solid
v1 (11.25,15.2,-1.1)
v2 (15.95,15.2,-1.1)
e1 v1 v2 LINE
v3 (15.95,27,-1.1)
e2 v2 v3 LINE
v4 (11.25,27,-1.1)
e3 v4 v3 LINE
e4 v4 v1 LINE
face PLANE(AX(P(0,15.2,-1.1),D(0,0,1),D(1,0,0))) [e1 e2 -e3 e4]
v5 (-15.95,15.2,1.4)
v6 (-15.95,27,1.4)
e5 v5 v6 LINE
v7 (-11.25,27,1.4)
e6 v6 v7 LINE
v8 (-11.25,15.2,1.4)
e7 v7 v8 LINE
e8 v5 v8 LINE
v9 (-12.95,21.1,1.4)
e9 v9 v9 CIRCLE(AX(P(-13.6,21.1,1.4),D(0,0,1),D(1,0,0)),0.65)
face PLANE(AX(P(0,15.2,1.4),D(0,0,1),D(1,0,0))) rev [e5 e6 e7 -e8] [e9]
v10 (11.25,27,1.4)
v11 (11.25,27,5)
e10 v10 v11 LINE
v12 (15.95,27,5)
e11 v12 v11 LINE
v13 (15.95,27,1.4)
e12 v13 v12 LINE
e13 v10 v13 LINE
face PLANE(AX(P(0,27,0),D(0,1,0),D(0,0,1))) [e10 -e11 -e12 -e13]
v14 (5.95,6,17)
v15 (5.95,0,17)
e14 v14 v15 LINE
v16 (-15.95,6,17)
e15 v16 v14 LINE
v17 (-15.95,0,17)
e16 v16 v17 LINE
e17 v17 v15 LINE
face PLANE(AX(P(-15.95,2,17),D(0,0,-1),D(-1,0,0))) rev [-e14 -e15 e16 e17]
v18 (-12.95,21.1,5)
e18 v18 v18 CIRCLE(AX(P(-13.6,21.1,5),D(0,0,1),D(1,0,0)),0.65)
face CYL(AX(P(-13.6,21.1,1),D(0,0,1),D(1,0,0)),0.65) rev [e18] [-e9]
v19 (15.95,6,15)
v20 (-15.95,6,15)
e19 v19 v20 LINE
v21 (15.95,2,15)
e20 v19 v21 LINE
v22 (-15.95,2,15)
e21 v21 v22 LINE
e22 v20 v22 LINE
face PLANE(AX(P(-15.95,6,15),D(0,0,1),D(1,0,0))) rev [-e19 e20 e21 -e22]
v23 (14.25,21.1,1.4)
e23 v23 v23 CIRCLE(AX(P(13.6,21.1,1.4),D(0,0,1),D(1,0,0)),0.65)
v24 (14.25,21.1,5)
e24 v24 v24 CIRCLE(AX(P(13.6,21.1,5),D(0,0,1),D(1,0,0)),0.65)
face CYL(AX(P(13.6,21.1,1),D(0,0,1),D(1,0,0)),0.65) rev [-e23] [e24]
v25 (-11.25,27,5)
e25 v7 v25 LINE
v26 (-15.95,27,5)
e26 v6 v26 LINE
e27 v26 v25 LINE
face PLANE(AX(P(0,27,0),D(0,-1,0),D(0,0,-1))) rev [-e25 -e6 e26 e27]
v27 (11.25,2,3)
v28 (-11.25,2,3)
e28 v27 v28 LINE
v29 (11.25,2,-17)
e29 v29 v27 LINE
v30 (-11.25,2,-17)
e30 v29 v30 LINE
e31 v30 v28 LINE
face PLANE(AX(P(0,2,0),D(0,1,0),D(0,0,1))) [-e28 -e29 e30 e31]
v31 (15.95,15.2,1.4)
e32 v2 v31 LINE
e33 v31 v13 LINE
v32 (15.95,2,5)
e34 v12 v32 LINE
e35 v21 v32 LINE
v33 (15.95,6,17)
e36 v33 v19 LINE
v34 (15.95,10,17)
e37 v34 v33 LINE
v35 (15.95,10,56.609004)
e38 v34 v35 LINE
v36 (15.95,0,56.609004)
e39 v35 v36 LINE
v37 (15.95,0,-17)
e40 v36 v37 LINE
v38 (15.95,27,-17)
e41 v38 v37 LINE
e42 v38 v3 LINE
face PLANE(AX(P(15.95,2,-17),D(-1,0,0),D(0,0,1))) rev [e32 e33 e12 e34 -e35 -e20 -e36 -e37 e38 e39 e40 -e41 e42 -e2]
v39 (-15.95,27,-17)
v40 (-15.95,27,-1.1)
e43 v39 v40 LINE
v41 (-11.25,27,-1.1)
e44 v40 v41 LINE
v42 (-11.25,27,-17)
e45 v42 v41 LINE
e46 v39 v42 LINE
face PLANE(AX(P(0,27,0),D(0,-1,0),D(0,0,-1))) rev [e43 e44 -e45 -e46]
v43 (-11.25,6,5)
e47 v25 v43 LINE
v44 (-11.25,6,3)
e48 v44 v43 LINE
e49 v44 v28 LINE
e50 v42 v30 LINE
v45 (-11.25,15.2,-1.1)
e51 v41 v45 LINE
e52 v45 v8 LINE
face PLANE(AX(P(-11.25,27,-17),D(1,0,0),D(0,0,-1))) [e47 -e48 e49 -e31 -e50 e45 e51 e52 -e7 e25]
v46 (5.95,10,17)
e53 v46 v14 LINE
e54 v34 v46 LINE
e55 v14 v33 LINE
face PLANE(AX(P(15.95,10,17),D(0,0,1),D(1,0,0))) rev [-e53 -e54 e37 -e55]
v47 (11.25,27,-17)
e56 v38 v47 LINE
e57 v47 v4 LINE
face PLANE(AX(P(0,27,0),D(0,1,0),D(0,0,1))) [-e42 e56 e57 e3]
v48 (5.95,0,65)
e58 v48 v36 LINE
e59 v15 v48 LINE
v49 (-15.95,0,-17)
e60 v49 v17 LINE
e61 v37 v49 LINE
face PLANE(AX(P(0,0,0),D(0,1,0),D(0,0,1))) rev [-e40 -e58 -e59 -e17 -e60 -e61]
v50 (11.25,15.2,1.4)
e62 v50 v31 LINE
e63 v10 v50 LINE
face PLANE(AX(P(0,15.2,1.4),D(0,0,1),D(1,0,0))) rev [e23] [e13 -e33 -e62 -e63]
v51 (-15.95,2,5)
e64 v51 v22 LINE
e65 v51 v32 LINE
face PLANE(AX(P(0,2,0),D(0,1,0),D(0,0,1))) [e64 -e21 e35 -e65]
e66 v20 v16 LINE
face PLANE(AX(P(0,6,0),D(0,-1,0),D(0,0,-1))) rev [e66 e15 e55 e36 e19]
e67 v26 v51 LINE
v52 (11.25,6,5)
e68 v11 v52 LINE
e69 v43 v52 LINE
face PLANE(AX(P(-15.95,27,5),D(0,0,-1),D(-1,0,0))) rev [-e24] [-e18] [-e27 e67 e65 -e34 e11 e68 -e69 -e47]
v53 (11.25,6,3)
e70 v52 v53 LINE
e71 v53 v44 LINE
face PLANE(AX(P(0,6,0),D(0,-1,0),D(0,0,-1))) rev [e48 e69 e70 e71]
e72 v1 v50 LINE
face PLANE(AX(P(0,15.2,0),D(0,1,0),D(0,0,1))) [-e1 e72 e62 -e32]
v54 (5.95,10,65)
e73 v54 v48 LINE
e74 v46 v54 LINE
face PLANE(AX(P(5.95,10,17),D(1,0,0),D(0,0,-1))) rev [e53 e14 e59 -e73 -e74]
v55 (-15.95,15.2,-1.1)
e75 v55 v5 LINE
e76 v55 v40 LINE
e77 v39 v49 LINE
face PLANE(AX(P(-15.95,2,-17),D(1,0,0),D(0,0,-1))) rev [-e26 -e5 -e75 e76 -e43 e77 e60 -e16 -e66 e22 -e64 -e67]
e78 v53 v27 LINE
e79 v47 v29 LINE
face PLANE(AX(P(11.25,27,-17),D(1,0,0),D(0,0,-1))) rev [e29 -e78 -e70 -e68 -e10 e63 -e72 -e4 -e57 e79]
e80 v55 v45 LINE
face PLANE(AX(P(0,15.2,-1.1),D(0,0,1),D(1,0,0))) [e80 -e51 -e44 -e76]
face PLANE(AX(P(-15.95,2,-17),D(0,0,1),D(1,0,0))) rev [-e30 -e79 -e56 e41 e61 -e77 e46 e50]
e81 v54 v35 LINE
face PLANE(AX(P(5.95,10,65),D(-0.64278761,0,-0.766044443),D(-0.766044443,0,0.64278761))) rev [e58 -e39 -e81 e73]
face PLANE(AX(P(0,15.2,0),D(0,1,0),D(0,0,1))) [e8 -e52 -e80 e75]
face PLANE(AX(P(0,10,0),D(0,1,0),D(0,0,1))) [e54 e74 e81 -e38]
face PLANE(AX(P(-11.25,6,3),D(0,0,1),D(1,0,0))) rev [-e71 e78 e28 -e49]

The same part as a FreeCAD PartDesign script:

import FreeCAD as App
import Part
import Sketcher

V = App.Vector
Q = App.Units.Quantity

doc = App.newDocument("Part")
params = doc.addObject("Spreadsheet::Sheet", "Params")
for row, (alias, value) in enumerate([
    ("sketch1_height", "34 mm"),
    ("sketch1_width", "31.9 mm"),
    ("pad1_length", "2 mm"),
    ("sketch2_height", "22 mm"),
    ("sketch2_width", "4.7 mm"),
    ("pad2_length", "25 mm"),
    ("sketch3_height", "2 mm"),
    ("sketch3_width", "22.5 mm"),
    ("sketch3_width2", "31.9 mm"),
    ("pad3_length", "4 mm"),
    ("sketch4_width", "31.9 mm"),
    ("sketch4_height", "2.5 mm"),
    ("pocket1_length", "11.8 mm"),
    ("sketch5_diameter", "1.3 mm"),
    ("pocket2_length", "4 mm"),
    ("sketch6_width", "10 mm"),
    ("sketch6_height", "48 mm"),
    ("pad4_length", "10 mm"),
], start=1):
    params.set(f"A{row}", alias)
    params.set(f"B{row}", "=" + value)
    params.setAlias(f"B{row}", alias)

body = doc.addObject("PartDesign::Body", "Body")

# Sketch on XZ plane
sketch1 = body.newObject("Sketcher::SketchObject", "Sketch")
sketch1.AttachmentSupport = (doc.getObject("XZ_Plane"), [""])
sketch1.MapMode = "FlatFace"
sketch1.addGeometry(Part.LineSegment(V(-15.95, -17, 0), V(-15.95, 17, 0)), False)
sketch1.addGeometry(Part.LineSegment(V(-15.95, 17, 0), V(15.95, 17, 0)), False)
sketch1.addGeometry(Part.LineSegment(V(15.95, 17, 0), V(15.95, -17, 0)), False)
sketch1.addGeometry(Part.LineSegment(V(15.95, -17, 0), V(-15.95, -17, 0)), False)
sketch1.addConstraint(Sketcher.Constraint("Coincident", 0, 2, 1, 1))
sketch1.addConstraint(Sketcher.Constraint("Coincident", 1, 2, 2, 1))
sketch1.addConstraint(Sketcher.Constraint("Coincident", 2, 2, 3, 1))
sketch1.addConstraint(Sketcher.Constraint("Coincident", 3, 2, 0, 1))
sketch1.addConstraint(Sketcher.Constraint("Vertical", 0))
sketch1.addConstraint(Sketcher.Constraint("Horizontal", 1))
sketch1.addConstraint(Sketcher.Constraint("Vertical", 2))
sketch1.addConstraint(Sketcher.Constraint("Horizontal", 3))
sketch1.addConstraint(Sketcher.Constraint("Symmetric", 0, 2, 2, 2, -1, 1))
sketch1.addConstraint(Sketcher.Constraint("DistanceY", 0, 1, 0, 2, Q("34 mm")))
sketch1.addConstraint(Sketcher.Constraint("DistanceX", 1, 1, 1, 2, Q("31.9 mm")))
sketch1.setExpression("Constraints[9]", "Params.sketch1_height")
sketch1.setExpression("Constraints[10]", "Params.sketch1_width")
pad1 = body.newObject("PartDesign::Pad", "Pad")
pad1.Profile = sketch1
pad1.setExpression("Length", "Params.pad1_length")
pad1.Reversed = True

# Sketch on XZ plane
sketch2 = body.newObject("Sketcher::SketchObject", "Sketch001")
sketch2.AttachmentSupport = (doc.getObject("XZ_Plane"), [""])
sketch2.MapMode = "FlatFace"
sketch2.AttachmentOffset = App.Placement(V(0, 0, -2), App.Rotation())
sketch2.addGeometry(Part.LineSegment(V(-15.95, -17, 0), V(-15.95, 5, 0)), False)
sketch2.addGeometry(Part.LineSegment(V(-15.95, 5, 0), V(-11.25, 5, 0)), False)
sketch2.addGeometry(Part.LineSegment(V(-11.25, 5, 0), V(-11.25, -17, 0)), False)
sketch2.addGeometry(Part.LineSegment(V(-11.25, -17, 0), V(-15.95, -17, 0)), False)
sketch2.addGeometry(Part.LineSegment(V(11.25, -17, 0), V(11.25, 5, 0)), False)
sketch2.addGeometry(Part.LineSegment(V(11.25, 5, 0), V(15.95, 5, 0)), False)
sketch2.addGeometry(Part.LineSegment(V(15.95, 5, 0), V(15.95, -17, 0)), False)
sketch2.addGeometry(Part.LineSegment(V(15.95, -17, 0), V(11.25, -17, 0)), False)
sketch2.addConstraint(Sketcher.Constraint("Coincident", 0, 2, 1, 1))
sketch2.addConstraint(Sketcher.Constraint("Coincident", 1, 2, 2, 1))
sketch2.addConstraint(Sketcher.Constraint("Coincident", 2, 2, 3, 1))
sketch2.addConstraint(Sketcher.Constraint("Coincident", 3, 2, 0, 1))
sketch2.addConstraint(Sketcher.Constraint("Coincident", 4, 2, 5, 1))
sketch2.addConstraint(Sketcher.Constraint("Coincident", 5, 2, 6, 1))
sketch2.addConstraint(Sketcher.Constraint("Coincident", 6, 2, 7, 1))
sketch2.addConstraint(Sketcher.Constraint("Coincident", 7, 2, 4, 1))
sketch2.addConstraint(Sketcher.Constraint("Vertical", 0))
sketch2.addConstraint(Sketcher.Constraint("Horizontal", 1))
sketch2.addConstraint(Sketcher.Constraint("Vertical", 2))
sketch2.addConstraint(Sketcher.Constraint("Horizontal", 3))
sketch2.addConstraint(Sketcher.Constraint("Vertical", 4))
sketch2.addConstraint(Sketcher.Constraint("Horizontal", 5))
sketch2.addConstraint(Sketcher.Constraint("Vertical", 6))
sketch2.addConstraint(Sketcher.Constraint("Horizontal", 7))
sketch2.addConstraint(Sketcher.Constraint("Symmetric", 1, 2, 4, 2, -2))
sketch2.addConstraint(Sketcher.Constraint("Symmetric", 3, 2, 6, 2, -2))
sketch2.addConstraint(Sketcher.Constraint("DistanceY", 0, 1, 0, 2, Q("22 mm")))
sketch2.addConstraint(Sketcher.Constraint("DistanceX", 1, 1, 1, 2, Q("4.7 mm")))
sketch2.addConstraint(Sketcher.Constraint("DistanceY", -1, 1, 0, 2, Q("5 mm")))
sketch2.addConstraint(Sketcher.Constraint("DistanceX", 1, 2, 4, 2, Q("22.5 mm")))
sketch2.setExpression("Constraints[18]", "Params.sketch2_height")
sketch2.setExpression("Constraints[19]", "Params.sketch2_width")
pad2 = body.newObject("PartDesign::Pad", "Pad001")
pad2.Profile = sketch2
pad2.setExpression("Length", "Params.pad2_length")
pad2.Reversed = True

# Sketch on XZ plane
sketch3 = body.newObject("Sketcher::SketchObject", "Sketch002")
sketch3.AttachmentSupport = (doc.getObject("XZ_Plane"), [""])
sketch3.MapMode = "FlatFace"
sketch3.AttachmentOffset = App.Placement(V(0, 0, -2), App.Rotation())
sketch3.addGeometry(Part.LineSegment(V(-11.25, 3, 0), V(-11.25, 5, 0)), False)
sketch3.addGeometry(Part.LineSegment(V(-11.25, 5, 0), V(11.25, 5, 0)), False)
sketch3.addGeometry(Part.LineSegment(V(11.25, 5, 0), V(11.25, 3, 0)), False)
sketch3.addGeometry(Part.LineSegment(V(11.25, 3, 0), V(-11.25, 3, 0)), False)
sketch3.addGeometry(Part.LineSegment(V(-15.95, 15, 0), V(-15.95, 17, 0)), False)
sketch3.addGeometry(Part.LineSegment(V(-15.95, 17, 0), V(15.95, 17, 0)), False)
sketch3.addGeometry(Part.LineSegment(V(15.95, 17, 0), V(15.95, 15, 0)), False)
sketch3.addGeometry(Part.LineSegment(V(15.95, 15, 0), V(-15.95, 15, 0)), False)
sketch3.addConstraint(Sketcher.Constraint("Coincident", 0, 2, 1, 1))
sketch3.addConstraint(Sketcher.Constraint("Coincident", 1, 2, 2, 1))
sketch3.addConstraint(Sketcher.Constraint("Coincident", 2, 2, 3, 1))
sketch3.addConstraint(Sketcher.Constraint("Coincident", 3, 2, 0, 1))
sketch3.addConstraint(Sketcher.Constraint("Coincident", 4, 2, 5, 1))
sketch3.addConstraint(Sketcher.Constraint("Coincident", 5, 2, 6, 1))
sketch3.addConstraint(Sketcher.Constraint("Coincident", 6, 2, 7, 1))
sketch3.addConstraint(Sketcher.Constraint("Coincident", 7, 2, 4, 1))
sketch3.addConstraint(Sketcher.Constraint("Vertical", 0))
sketch3.addConstraint(Sketcher.Constraint("Horizontal", 1))
sketch3.addConstraint(Sketcher.Constraint("Vertical", 2))
sketch3.addConstraint(Sketcher.Constraint("Horizontal", 3))
sketch3.addConstraint(Sketcher.Constraint("Vertical", 4))
sketch3.addConstraint(Sketcher.Constraint("Horizontal", 5))
sketch3.addConstraint(Sketcher.Constraint("Vertical", 6))
sketch3.addConstraint(Sketcher.Constraint("Horizontal", 7))
sketch3.addConstraint(Sketcher.Constraint("Equal", 2, 4))
sketch3.addConstraint(Sketcher.Constraint("DistanceY", 0, 1, 0, 2, Q("2 mm")))
sketch3.addConstraint(Sketcher.Constraint("DistanceX", 1, 1, 1, 2, Q("22.5 mm")))
sketch3.addConstraint(Sketcher.Constraint("DistanceX", 5, 1, 5, 2, Q("31.9 mm")))
sketch3.addConstraint(Sketcher.Constraint("DistanceY", -1, 1, 0, 2, Q("5 mm")))
sketch3.addConstraint(Sketcher.Constraint("DistanceY", -1, 1, 4, 2, Q("17 mm")))
sketch3.addConstraint(Sketcher.Constraint("DistanceX", 4, 2, 0, 2, Q("4.7 mm")))
sketch3.addConstraint(Sketcher.Constraint("DistanceX", 0, 2, -1, 1, Q("11.25 mm")))
sketch3.setExpression("Constraints[17]", "Params.sketch3_height")
sketch3.setExpression("Constraints[18]", "Params.sketch3_width")
sketch3.setExpression("Constraints[19]", "Params.sketch3_width2")
pad3 = body.newObject("PartDesign::Pad", "Pad002")
pad3.Profile = sketch3
pad3.setExpression("Length", "Params.pad3_length")
pad3.Reversed = True

# Sketch on XZ plane
sketch4 = body.newObject("Sketcher::SketchObject", "Sketch003")
sketch4.AttachmentSupport = (doc.getObject("XZ_Plane"), [""])
sketch4.MapMode = "FlatFace"
sketch4.AttachmentOffset = App.Placement(V(0, 0, -27), App.Rotation())
sketch4.addGeometry(Part.LineSegment(V(15.95, 1.4, 0), V(15.95, -1.1, 0)), False)
sketch4.addGeometry(Part.LineSegment(V(15.95, -1.1, 0), V(-15.95, -1.1, 0)), False)
sketch4.addGeometry(Part.LineSegment(V(-15.95, -1.1, 0), V(-15.95, 1.4, 0)), False)
sketch4.addGeometry(Part.LineSegment(V(-15.95, 1.4, 0), V(15.95, 1.4, 0)), False)
sketch4.addConstraint(Sketcher.Constraint("Coincident", 0, 2, 1, 1))
sketch4.addConstraint(Sketcher.Constraint("Coincident", 1, 2, 2, 1))
sketch4.addConstraint(Sketcher.Constraint("Coincident", 2, 2, 3, 1))
sketch4.addConstraint(Sketcher.Constraint("Coincident", 3, 2, 0, 1))
sketch4.addConstraint(Sketcher.Constraint("Vertical", 0))
sketch4.addConstraint(Sketcher.Constraint("Horizontal", 1))
sketch4.addConstraint(Sketcher.Constraint("Vertical", 2))
sketch4.addConstraint(Sketcher.Constraint("Horizontal", 3))
sketch4.addConstraint(Sketcher.Constraint("DistanceX", 1, 2, 1, 1, Q("31.9 mm")))
sketch4.addConstraint(Sketcher.Constraint("DistanceY", 0, 2, 0, 1, Q("2.5 mm")))
sketch4.addConstraint(Sketcher.Constraint("DistanceY", 0, 2, -1, 1, Q("1.1 mm")))
sketch4.addConstraint(Sketcher.Constraint("DistanceX", -1, 1, 0, 2, Q("15.95 mm")))
sketch4.setExpression("Constraints[8]", "Params.sketch4_width")
sketch4.setExpression("Constraints[9]", "Params.sketch4_height")
pocket1 = body.newObject("PartDesign::Pocket", "Pocket")
pocket1.Profile = sketch4
pocket1.setExpression("Length", "Params.pocket1_length")
pocket1.Reversed = True

# Sketch on XY plane
sketch5 = body.newObject("Sketcher::SketchObject", "Sketch004")
sketch5.AttachmentSupport = (doc.getObject("XY_Plane"), [""])
sketch5.MapMode = "FlatFace"
sketch5.AttachmentOffset = App.Placement(V(0, 0, 5), App.Rotation())
sketch5.addGeometry(Part.Circle(V(-13.6, 21.1, 0), V(0, 0, 1), 0.65), False)
sketch5.addGeometry(Part.Circle(V(13.6, 21.1, 0), V(0, 0, 1), 0.65), False)
sketch5.addConstraint(Sketcher.Constraint("Equal", 0, 1))
sketch5.addConstraint(Sketcher.Constraint("Symmetric", 0, 3, 1, 3, -2))
sketch5.addConstraint(Sketcher.Constraint("Diameter", 0, Q("1.3 mm")))
sketch5.addConstraint(Sketcher.Constraint("DistanceX", 0, 3, -1, 1, Q("13.6 mm")))
sketch5.addConstraint(Sketcher.Constraint("DistanceY", -1, 1, 0, 3, Q("21.1 mm")))
sketch5.setExpression("Constraints[2]", "Params.sketch5_diameter")
pocket2 = body.newObject("PartDesign::Pocket", "Pocket001")
pocket2.Profile = sketch5
pocket2.setExpression("Length", "Params.pocket2_length")

# Sketch on XZ plane
sketch6 = body.newObject("Sketcher::SketchObject", "Sketch005")
sketch6.AttachmentSupport = (doc.getObject("XZ_Plane"), [""])
sketch6.MapMode = "FlatFace"
sketch6.addGeometry(Part.LineSegment(V(5.95, 65, 0), V(15.95, 56.609004, 0)), False)
sketch6.addGeometry(Part.LineSegment(V(15.95, 56.609004, 0), V(15.95, 17, 0)), False)
sketch6.addGeometry(Part.LineSegment(V(15.95, 17, 0), V(5.95, 17, 0)), False)
sketch6.addGeometry(Part.LineSegment(V(5.95, 17, 0), V(5.95, 65, 0)), False)
sketch6.addConstraint(Sketcher.Constraint("Coincident", 0, 2, 1, 1))
sketch6.addConstraint(Sketcher.Constraint("Coincident", 1, 2, 2, 1))
sketch6.addConstraint(Sketcher.Constraint("Coincident", 2, 2, 3, 1))
sketch6.addConstraint(Sketcher.Constraint("Coincident", 3, 2, 0, 1))
sketch6.addConstraint(Sketcher.Constraint("Vertical", 1))
sketch6.addConstraint(Sketcher.Constraint("Horizontal", 2))
sketch6.addConstraint(Sketcher.Constraint("Vertical", 3))
sketch6.addConstraint(Sketcher.Constraint("DistanceX", 2, 2, 2, 1, Q("10 mm")))
sketch6.addConstraint(Sketcher.Constraint("DistanceY", 3, 1, 3, 2, Q("48 mm")))
sketch6.addConstraint(Sketcher.Constraint("Angle", 0, Q("-40 deg")))
sketch6.addConstraint(Sketcher.Constraint("DistanceY", -1, 1, 1, 2, Q("17 mm")))
sketch6.addConstraint(Sketcher.Constraint("DistanceX", -1, 1, 0, 2, Q("15.95 mm")))
sketch6.setExpression("Constraints[7]", "Params.sketch6_width")
sketch6.setExpression("Constraints[8]", "Params.sketch6_height")
pad4 = body.newObject("PartDesign::Pad", "Pad003")
pad4.Profile = sketch6
pad4.setExpression("Length", "Params.pad4_length")
pad4.Reversed = True

doc.recompute()
